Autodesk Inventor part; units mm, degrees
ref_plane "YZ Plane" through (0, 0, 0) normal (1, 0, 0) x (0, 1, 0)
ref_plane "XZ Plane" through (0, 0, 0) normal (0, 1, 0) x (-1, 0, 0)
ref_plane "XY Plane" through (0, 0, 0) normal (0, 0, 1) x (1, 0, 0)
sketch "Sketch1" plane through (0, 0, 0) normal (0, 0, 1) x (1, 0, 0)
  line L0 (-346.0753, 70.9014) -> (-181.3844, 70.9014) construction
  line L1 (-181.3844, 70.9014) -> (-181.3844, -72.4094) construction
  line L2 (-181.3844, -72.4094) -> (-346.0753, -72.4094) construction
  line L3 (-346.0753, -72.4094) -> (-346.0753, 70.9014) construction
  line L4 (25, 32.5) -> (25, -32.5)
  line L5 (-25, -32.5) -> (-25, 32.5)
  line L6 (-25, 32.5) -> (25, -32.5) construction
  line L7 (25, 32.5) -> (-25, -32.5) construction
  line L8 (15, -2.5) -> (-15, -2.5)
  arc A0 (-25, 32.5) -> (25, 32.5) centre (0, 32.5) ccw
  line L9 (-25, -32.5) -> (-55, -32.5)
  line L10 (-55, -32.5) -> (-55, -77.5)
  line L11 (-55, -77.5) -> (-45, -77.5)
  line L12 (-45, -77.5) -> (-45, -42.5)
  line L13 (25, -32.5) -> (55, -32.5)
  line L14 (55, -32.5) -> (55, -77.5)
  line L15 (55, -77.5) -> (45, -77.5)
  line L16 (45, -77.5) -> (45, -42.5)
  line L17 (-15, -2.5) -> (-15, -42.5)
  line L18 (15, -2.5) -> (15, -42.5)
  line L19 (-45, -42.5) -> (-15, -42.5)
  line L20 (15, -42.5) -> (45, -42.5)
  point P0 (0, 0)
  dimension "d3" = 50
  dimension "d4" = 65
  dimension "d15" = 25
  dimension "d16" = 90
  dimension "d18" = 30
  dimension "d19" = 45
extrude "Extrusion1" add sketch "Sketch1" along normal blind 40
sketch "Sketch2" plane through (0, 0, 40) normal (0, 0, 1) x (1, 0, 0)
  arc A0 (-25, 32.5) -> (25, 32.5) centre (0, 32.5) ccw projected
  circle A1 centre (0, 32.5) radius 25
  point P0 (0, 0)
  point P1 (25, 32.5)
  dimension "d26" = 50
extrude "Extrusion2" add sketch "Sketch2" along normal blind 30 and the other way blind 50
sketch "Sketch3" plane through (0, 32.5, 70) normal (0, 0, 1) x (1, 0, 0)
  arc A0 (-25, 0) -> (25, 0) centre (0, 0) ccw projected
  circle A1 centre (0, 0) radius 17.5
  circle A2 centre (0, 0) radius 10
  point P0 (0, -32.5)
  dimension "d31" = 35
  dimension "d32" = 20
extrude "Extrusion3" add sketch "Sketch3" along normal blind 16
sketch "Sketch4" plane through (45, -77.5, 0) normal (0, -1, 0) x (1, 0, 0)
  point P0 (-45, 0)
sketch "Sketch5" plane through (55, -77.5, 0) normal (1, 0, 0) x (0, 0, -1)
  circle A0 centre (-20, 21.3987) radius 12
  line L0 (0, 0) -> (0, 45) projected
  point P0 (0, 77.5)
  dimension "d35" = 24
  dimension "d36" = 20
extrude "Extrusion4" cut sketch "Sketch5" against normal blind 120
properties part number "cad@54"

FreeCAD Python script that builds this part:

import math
import FreeCAD as App
import Part
import Sketcher
Q = App.Units.Quantity

doc = App.newDocument("Part")
body = doc.addObject("PartDesign::Body", "Body")

# Sketch on XY plane
sketch1 = body.newObject("Sketcher::SketchObject", "Sketch")
sketch1.AttachmentSupport = (doc.getObject("XY_Plane"), [""])
sketch1.MapMode = "FlatFace"
sketch1.addGeometry(Part.LineSegment(App.Vector(25, -32, 0), App.Vector(25, 32, 0)), False)
sketch1.addGeometry(Part.ArcOfCircle(Part.Circle(App.Vector(0, 32, 0), App.Vector(0, 0, 1), 25), math.radians(180), math.radians(360)), False)
sketch1.addGeometry(Part.LineSegment(App.Vector(-25, 32, 0), App.Vector(-25, -32, 0)), False)
sketch1.addGeometry(Part.LineSegment(App.Vector(-25, -32, 0), App.Vector(-55, -32, 0)), False)
sketch1.addGeometry(Part.LineSegment(App.Vector(-55, -32, 0), App.Vector(-55, -78, 0)), False)
sketch1.addGeometry(Part.LineSegment(App.Vector(-55, -78, 0), App.Vector(-45, -78, 0)), False)
sketch1.addGeometry(Part.LineSegment(App.Vector(-45, -78, 0), App.Vector(-45, -42, 0)), False)
sketch1.addGeometry(Part.LineSegment(App.Vector(-45, -42, 0), App.Vector(-15, -42, 0)), False)
sketch1.addGeometry(Part.LineSegment(App.Vector(-15, -42, 0), App.Vector(-15, -2, 0)), False)
sketch1.addGeometry(Part.LineSegment(App.Vector(-15, -2, 0), App.Vector(15, -2, 0)), False)
sketch1.addGeometry(Part.LineSegment(App.Vector(15, -2, 0), App.Vector(15, -42, 0)), False)
sketch1.addGeometry(Part.LineSegment(App.Vector(15, -42, 0), App.Vector(45, -42, 0)), False)
sketch1.addGeometry(Part.LineSegment(App.Vector(45, -42, 0), App.Vector(45, -78, 0)), False)
sketch1.addGeometry(Part.LineSegment(App.Vector(45, -78, 0), App.Vector(55, -78, 0)), False)
sketch1.addGeometry(Part.LineSegment(App.Vector(55, -78, 0), App.Vector(55, -32, 0)), False)
sketch1.addGeometry(Part.LineSegment(App.Vector(55, -32, 0), App.Vector(25, -32, 0)), False)
sketch1.addConstraint(Sketcher.Constraint("Tangent", 0, 2, 1, 2))
sketch1.addConstraint(Sketcher.Constraint("Tangent", 1, 1, 2, 1))
sketch1.addConstraint(Sketcher.Constraint("Coincident", 2, 2, 3, 1))
sketch1.addConstraint(Sketcher.Constraint("Coincident", 3, 2, 4, 1))
sketch1.addConstraint(Sketcher.Constraint("Coincident", 4, 2, 5, 1))
sketch1.addConstraint(Sketcher.Constraint("Coincident", 5, 2, 6, 1))
sketch1.addConstraint(Sketcher.Constraint("Coincident", 6, 2, 7, 1))
sketch1.addConstraint(Sketcher.Constraint("Coincident", 7, 2, 8, 1))
sketch1.addConstraint(Sketcher.Constraint("Coincident", 8, 2, 9, 1))
sketch1.addConstraint(Sketcher.Constraint("Coincident", 9, 2, 10, 1))
sketch1.addConstraint(Sketcher.Constraint("Coincident", 10, 2, 11, 1))
sketch1.addConstraint(Sketcher.Constraint("Coincident", 11, 2, 12, 1))
sketch1.addConstraint(Sketcher.Constraint("Coincident", 12, 2, 13, 1))
sketch1.addConstraint(Sketcher.Constraint("Coincident", 13, 2, 14, 1))
sketch1.addConstraint(Sketcher.Constraint("Coincident", 14, 2, 15, 1))
sketch1.addConstraint(Sketcher.Constraint("Coincident", 15, 2, 0, 1))
sketch1.addConstraint(Sketcher.Constraint("Vertical", 0))
sketch1.addConstraint(Sketcher.Constraint("Vertical", 2))
sketch1.addConstraint(Sketcher.Constraint("Horizontal", 3))
sketch1.addConstraint(Sketcher.Constraint("Vertical", 4))
sketch1.addConstraint(Sketcher.Constraint("Horizontal", 5))
sketch1.addConstraint(Sketcher.Constraint("Vertical", 6))
sketch1.addConstraint(Sketcher.Constraint("Horizontal", 7))
sketch1.addConstraint(Sketcher.Constraint("Vertical", 8))
sketch1.addConstraint(Sketcher.Constraint("Horizontal", 9))
sketch1.addConstraint(Sketcher.Constraint("Vertical", 10))
sketch1.addConstraint(Sketcher.Constraint("Horizontal", 11))
sketch1.addConstraint(Sketcher.Constraint("Vertical", 12))
sketch1.addConstraint(Sketcher.Constraint("Horizontal", 13))
sketch1.addConstraint(Sketcher.Constraint("Vertical", 14))
sketch1.addConstraint(Sketcher.Constraint("Horizontal", 15))
sketch1.addConstraint(Sketcher.Constraint("Symmetric", 0, 2, 2, 2, -1, 1))
sketch1.addConstraint(Sketcher.Constraint("Symmetric", 7, 2, 10, 2, -2))
sketch1.addConstraint(Sketcher.Constraint("Symmetric", 5, 2, 12, 2, -2))
sketch1.addConstraint(Sketcher.Constraint("Symmetric", 3, 2, 14, 2, -2))
sketch1.addConstraint(Sketcher.Constraint("Equal", 3, 7))
sketch1.addConstraint(Sketcher.Constraint("Equal", 7, 9))
sketch1.addConstraint(Sketcher.Constraint("Radius", 1, Q("25 mm")))
sketch1.addConstraint(Sketcher.Constraint("DistanceX", 3, 2, 3, 1, Q("30 mm")))
sketch1.addConstraint(Sketcher.Constraint("DistanceY", 0, 1, 0, 2, Q("65 mm")))
sketch1.addConstraint(Sketcher.Constraint("DistanceY", 4, 2, 4, 1, Q("45 mm")))
sketch1.addConstraint(Sketcher.Constraint("DistanceY", 2, 2, 8, 2, Q("30 mm")))
sketch1.addConstraint(Sketcher.Constraint("DistanceY", 6, 1, 6, 2, Q("35 mm")))
pad1 = body.newObject("PartDesign::Pad", "Pad")
pad1.Profile = sketch1
pad1.Length = 40

# Sketch on XY plane
sketch2 = body.newObject("Sketcher::SketchObject", "Sketch001")
sketch2.AttachmentSupport = (doc.getObject("XY_Plane"), [""])
sketch2.MapMode = "FlatFace"
sketch2.AttachmentOffset = App.Placement(App.Vector(0, 0, 40), App.Rotation())
sketch2.addGeometry(Part.Circle(App.Vector(0, 32, 0), App.Vector(0, 0, 1), 25), False)
sketch2.addConstraint(Sketcher.Constraint("PointOnObject", 0, 3, -2))
sketch2.addConstraint(Sketcher.Constraint("Diameter", 0, Q("50 mm")))
sketch2.addConstraint(Sketcher.Constraint("DistanceY", -1, 1, 0, 3, Q("32.5 mm")))
pad2 = body.newObject("PartDesign::Pad", "Pad001")
pad2.Profile = sketch2
pad2.Type = "TwoLengths"
pad2.Length = 30
pad2.Length2 = 50

# Sketch on XY plane
sketch3 = body.newObject("Sketcher::SketchObject", "Sketch002")
sketch3.AttachmentSupport = (doc.getObject("XY_Plane"), [""])
sketch3.MapMode = "FlatFace"
sketch3.AttachmentOffset = App.Placement(App.Vector(0, 0, 70), App.Rotation())
sketch3.addGeometry(Part.Circle(App.Vector(0, 32, 0), App.Vector(0, 0, 1), 18), False)
sketch3.addGeometry(Part.Circle(App.Vector(0, 32, 0), App.Vector(0, 0, 1), 10), False)
sketch3.addConstraint(Sketcher.Constraint("Coincident", 1, 3, 0, 3))
sketch3.addConstraint(Sketcher.Constraint("PointOnObject", 0, 3, -2))
sketch3.addConstraint(Sketcher.Constraint("Diameter", 0, Q("35 mm")))
sketch3.addConstraint(Sketcher.Constraint("Diameter", 1, Q("20 mm")))
sketch3.addConstraint(Sketcher.Constraint("DistanceY", -1, 1, 0, 3, Q("32.5 mm")))
pad3 = body.newObject("PartDesign::Pad", "Pad002")
pad3.Profile = sketch3
pad3.Length = 16

# Sketch on YZ plane
sketch4 = body.newObject("Sketcher::SketchObject", "Sketch003")
sketch4.AttachmentSupport = (doc.getObject("YZ_Plane"), [""])
sketch4.MapMode = "FlatFace"
sketch4.AttachmentOffset = App.Placement(App.Vector(0, 0, 55), App.Rotation())
sketch4.addGeometry(Part.Circle(App.Vector(-56, 20, 0), App.Vector(0, 0, 1), 12), False)
sketch4.addConstraint(Sketcher.Constraint("Diameter", 0, Q("24 mm")))
sketch4.addConstraint(Sketcher.Constraint("DistanceY", -1, 1, 0, 3, Q("20 mm")))
sketch4.addConstraint(Sketcher.Constraint("DistanceX", 0, 3, -1, 1, Q("56.1013 mm")))
pocket1 = body.newObject("PartDesign::Pocket", "Pocket")
pocket1.Profile = sketch4
pocket1.Length = 120

doc.recompute()
